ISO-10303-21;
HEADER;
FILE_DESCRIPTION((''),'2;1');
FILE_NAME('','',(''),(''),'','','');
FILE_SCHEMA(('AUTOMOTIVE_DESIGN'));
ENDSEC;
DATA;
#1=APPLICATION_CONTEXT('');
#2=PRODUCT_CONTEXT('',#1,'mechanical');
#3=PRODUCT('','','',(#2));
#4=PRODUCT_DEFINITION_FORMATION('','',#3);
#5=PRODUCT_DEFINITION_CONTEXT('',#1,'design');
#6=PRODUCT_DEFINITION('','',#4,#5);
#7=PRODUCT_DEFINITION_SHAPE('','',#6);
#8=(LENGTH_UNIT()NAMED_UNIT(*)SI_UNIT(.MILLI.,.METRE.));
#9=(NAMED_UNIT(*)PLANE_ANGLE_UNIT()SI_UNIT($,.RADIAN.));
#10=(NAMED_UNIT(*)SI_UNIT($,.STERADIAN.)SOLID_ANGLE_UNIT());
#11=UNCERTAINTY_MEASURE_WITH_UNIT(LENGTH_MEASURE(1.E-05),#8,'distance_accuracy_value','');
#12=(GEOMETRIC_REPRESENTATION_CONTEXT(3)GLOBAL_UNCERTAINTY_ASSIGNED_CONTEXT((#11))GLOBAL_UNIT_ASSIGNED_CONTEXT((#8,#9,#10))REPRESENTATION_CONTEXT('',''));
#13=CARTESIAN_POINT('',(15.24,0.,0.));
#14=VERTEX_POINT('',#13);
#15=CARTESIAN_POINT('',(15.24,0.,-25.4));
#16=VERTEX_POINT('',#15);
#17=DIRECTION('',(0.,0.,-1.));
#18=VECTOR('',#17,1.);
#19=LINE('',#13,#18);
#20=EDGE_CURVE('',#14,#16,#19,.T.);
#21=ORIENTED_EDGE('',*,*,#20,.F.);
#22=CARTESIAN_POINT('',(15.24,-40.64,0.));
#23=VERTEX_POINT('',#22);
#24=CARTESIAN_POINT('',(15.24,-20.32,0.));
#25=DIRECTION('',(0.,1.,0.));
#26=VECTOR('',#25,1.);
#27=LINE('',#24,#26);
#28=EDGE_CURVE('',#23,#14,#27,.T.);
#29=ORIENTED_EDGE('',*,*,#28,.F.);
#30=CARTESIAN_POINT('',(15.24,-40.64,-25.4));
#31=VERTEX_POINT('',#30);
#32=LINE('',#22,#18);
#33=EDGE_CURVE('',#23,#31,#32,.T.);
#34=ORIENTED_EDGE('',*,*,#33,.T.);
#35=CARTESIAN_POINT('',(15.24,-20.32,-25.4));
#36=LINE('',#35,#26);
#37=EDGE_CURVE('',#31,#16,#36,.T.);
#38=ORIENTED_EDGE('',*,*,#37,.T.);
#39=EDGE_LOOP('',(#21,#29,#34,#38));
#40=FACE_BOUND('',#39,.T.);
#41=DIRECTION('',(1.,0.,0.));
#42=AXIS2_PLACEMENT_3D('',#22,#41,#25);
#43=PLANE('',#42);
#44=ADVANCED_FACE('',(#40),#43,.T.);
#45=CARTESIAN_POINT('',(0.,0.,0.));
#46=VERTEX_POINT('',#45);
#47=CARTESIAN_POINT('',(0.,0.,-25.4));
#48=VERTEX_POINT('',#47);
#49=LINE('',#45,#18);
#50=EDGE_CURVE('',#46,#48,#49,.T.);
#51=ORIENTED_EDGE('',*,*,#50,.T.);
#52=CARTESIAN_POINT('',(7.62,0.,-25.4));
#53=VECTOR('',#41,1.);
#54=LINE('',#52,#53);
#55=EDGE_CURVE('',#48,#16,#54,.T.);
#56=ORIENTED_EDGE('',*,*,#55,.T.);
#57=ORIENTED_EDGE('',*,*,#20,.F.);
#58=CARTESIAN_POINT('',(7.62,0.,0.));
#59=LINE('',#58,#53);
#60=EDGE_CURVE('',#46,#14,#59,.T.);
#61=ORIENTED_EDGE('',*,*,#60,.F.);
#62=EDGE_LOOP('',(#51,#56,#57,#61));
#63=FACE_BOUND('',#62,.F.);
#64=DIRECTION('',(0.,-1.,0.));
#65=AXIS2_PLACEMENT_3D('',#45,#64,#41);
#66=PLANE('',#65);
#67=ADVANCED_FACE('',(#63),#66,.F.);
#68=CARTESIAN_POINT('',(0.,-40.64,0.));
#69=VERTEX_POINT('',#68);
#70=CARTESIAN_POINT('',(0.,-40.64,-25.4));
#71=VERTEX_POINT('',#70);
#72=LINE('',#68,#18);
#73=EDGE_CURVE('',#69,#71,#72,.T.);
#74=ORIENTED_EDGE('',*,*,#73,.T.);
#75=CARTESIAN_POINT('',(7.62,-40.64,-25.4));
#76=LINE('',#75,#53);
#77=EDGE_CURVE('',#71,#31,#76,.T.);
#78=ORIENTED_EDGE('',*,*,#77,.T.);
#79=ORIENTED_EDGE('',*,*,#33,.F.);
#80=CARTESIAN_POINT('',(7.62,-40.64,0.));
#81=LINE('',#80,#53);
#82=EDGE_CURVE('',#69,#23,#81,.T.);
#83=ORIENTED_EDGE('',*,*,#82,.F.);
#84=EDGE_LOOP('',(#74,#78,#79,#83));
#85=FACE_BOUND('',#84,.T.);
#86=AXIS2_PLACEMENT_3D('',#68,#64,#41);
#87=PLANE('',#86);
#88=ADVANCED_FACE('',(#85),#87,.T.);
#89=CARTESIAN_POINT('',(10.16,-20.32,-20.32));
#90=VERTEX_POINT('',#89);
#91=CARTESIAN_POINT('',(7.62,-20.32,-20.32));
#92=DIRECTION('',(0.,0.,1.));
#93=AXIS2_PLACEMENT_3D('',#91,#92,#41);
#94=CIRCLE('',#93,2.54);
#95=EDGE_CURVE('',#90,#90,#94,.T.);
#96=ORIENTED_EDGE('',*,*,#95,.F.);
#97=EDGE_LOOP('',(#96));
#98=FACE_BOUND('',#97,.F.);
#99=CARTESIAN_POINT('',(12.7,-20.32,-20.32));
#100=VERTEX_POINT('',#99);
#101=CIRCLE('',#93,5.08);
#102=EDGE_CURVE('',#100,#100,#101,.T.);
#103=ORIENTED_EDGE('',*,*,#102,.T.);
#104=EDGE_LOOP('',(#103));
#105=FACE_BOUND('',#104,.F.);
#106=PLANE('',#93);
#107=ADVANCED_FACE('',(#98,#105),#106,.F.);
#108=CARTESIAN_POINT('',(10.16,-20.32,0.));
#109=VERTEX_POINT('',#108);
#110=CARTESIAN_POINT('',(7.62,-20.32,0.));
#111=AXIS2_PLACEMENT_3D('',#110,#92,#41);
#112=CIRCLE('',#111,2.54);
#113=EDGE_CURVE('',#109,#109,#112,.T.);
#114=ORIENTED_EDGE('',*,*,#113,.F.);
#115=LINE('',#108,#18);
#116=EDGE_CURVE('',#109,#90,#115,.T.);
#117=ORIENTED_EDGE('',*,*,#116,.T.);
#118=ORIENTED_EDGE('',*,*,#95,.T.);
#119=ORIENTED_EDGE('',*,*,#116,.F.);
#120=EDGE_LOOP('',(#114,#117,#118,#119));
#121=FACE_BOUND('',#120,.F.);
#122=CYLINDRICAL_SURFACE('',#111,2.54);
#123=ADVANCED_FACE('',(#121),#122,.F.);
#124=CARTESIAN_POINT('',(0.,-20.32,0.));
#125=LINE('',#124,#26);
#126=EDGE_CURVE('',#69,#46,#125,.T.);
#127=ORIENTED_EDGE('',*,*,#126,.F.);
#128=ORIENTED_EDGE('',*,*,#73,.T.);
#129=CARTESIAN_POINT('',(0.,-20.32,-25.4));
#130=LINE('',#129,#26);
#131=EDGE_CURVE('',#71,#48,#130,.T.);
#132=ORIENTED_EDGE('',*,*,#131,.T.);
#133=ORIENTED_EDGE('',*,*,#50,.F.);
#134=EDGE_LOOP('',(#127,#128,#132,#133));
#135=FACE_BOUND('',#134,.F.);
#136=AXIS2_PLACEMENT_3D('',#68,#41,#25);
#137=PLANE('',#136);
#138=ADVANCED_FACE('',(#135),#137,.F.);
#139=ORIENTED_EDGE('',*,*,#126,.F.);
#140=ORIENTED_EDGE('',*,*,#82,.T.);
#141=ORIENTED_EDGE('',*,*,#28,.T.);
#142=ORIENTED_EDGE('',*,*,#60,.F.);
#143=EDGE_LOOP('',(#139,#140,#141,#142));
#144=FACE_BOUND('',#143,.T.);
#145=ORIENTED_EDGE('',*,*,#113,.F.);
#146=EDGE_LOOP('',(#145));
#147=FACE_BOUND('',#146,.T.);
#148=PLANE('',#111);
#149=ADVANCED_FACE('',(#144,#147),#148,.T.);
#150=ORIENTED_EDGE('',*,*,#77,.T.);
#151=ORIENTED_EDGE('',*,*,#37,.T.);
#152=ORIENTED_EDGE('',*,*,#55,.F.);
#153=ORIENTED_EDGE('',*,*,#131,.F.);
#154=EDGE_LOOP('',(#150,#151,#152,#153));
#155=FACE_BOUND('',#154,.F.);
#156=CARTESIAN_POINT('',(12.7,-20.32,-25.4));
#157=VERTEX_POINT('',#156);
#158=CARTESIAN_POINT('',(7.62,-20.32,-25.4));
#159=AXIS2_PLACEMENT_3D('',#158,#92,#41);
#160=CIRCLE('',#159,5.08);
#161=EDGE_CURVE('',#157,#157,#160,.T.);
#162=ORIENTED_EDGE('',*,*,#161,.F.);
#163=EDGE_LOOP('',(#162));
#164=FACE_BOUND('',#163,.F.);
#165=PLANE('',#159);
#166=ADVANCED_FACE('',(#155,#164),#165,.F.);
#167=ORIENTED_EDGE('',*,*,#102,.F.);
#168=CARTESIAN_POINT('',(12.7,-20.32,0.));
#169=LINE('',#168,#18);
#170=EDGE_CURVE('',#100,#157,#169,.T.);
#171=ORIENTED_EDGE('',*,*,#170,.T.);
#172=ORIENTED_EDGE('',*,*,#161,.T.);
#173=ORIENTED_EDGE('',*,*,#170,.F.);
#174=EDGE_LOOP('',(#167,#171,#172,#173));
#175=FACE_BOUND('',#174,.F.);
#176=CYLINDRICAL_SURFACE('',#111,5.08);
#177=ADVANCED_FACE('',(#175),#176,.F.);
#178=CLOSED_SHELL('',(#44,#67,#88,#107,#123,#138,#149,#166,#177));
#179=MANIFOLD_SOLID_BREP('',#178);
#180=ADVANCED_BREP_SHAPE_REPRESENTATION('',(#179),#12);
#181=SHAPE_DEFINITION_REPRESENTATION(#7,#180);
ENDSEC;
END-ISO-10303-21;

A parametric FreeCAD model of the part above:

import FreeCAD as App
import Part
import Sketcher
Q = App.Units.Quantity


def add_polygon(sketch, points):
    """Adds a closed chain of lines whose ends are joined by coincident constraints."""
    first, n = sketch.GeometryCount, len(points)
    for a, b in zip(points, points[1:] + points[:1]):
        sketch.addGeometry(Part.LineSegment(App.Vector(*a, 0), App.Vector(*b, 0)), False)
    for i in range(n):
        sketch.addConstraint(Sketcher.Constraint("Coincident", first + i, 2, first + (i + 1) % n, 1))

doc = App.newDocument("Part")
body = doc.addObject("PartDesign::Body", "Body")

sketch1 = body.newObject("Sketcher::SketchObject", "Sketch")
sketch1.AttachmentSupport = (doc.getObject("XY_Plane"), [""])
sketch1.MapMode = "FlatFace"
add_polygon(sketch1, [(0, 0), (0, -40.64), (15.24, -40.64), (15.24, 0)])
sketch1.addGeometry(Part.Circle(App.Vector(7.62, -20.32, 0), App.Vector(0, 0, 1), 5.08), False)
sketch1.addConstraint([
    Sketcher.Constraint("Vertical", 0),
    Sketcher.Constraint("Horizontal", 1),
    Sketcher.Constraint("Vertical", 2),
    Sketcher.Constraint("Horizontal", 3),
    Sketcher.Constraint("Coincident", 3, 2, -1, 1),
    Sketcher.Constraint("Diameter", 4, Q("0.4 in")),
    Sketcher.Constraint("DistanceX", 1, 1, 1, 2, Q("0.6 in")),
    Sketcher.Constraint("DistanceY", 0, 2, 0, 1, Q("1.6 in")),
    Sketcher.Constraint("DistanceX", -1, 1, 4, 3, Q("0.3 in")),
    Sketcher.Constraint("DistanceY", 4, 3, -1, 1, Q("0.8 in")),
])
pad1 = body.newObject("PartDesign::Pad", "Pad")
pad1.Profile = sketch1
pad1.Length = Q("1 in")
pad1.Reversed = True

sketch2 = body.newObject("Sketcher::SketchObject", "Sketch001")
sketch2.AttachmentSupport = (doc.getObject("XY_Plane"), [""])
sketch2.MapMode = "FlatFace"
sketch2.addGeometry([
    Part.Circle(App.Vector(7.62, -20.32, 0), App.Vector(0, 0, 1), 5.08),
    Part.Circle(App.Vector(7.62, -20.32, 0), App.Vector(0, 0, 1), 2.54),
], False)
sketch2.addConstraint([
    Sketcher.Constraint("Coincident", 1, 3, 0, 3),
    Sketcher.Constraint("Diameter", 0, Q("0.4 in")),
    Sketcher.Constraint("Diameter", 1, Q("0.2 in")),
    Sketcher.Constraint("DistanceX", -1, 1, 0, 3, Q("0.3 in")),
    Sketcher.Constraint("DistanceY", 0, 3, -1, 1, Q("0.8 in")),
])
pad2 = body.newObject("PartDesign::Pad", "Pad001")
pad2.Profile = sketch2
pad2.Length = Q("0.8 in")
pad2.Reversed = True

doc.recompute()
